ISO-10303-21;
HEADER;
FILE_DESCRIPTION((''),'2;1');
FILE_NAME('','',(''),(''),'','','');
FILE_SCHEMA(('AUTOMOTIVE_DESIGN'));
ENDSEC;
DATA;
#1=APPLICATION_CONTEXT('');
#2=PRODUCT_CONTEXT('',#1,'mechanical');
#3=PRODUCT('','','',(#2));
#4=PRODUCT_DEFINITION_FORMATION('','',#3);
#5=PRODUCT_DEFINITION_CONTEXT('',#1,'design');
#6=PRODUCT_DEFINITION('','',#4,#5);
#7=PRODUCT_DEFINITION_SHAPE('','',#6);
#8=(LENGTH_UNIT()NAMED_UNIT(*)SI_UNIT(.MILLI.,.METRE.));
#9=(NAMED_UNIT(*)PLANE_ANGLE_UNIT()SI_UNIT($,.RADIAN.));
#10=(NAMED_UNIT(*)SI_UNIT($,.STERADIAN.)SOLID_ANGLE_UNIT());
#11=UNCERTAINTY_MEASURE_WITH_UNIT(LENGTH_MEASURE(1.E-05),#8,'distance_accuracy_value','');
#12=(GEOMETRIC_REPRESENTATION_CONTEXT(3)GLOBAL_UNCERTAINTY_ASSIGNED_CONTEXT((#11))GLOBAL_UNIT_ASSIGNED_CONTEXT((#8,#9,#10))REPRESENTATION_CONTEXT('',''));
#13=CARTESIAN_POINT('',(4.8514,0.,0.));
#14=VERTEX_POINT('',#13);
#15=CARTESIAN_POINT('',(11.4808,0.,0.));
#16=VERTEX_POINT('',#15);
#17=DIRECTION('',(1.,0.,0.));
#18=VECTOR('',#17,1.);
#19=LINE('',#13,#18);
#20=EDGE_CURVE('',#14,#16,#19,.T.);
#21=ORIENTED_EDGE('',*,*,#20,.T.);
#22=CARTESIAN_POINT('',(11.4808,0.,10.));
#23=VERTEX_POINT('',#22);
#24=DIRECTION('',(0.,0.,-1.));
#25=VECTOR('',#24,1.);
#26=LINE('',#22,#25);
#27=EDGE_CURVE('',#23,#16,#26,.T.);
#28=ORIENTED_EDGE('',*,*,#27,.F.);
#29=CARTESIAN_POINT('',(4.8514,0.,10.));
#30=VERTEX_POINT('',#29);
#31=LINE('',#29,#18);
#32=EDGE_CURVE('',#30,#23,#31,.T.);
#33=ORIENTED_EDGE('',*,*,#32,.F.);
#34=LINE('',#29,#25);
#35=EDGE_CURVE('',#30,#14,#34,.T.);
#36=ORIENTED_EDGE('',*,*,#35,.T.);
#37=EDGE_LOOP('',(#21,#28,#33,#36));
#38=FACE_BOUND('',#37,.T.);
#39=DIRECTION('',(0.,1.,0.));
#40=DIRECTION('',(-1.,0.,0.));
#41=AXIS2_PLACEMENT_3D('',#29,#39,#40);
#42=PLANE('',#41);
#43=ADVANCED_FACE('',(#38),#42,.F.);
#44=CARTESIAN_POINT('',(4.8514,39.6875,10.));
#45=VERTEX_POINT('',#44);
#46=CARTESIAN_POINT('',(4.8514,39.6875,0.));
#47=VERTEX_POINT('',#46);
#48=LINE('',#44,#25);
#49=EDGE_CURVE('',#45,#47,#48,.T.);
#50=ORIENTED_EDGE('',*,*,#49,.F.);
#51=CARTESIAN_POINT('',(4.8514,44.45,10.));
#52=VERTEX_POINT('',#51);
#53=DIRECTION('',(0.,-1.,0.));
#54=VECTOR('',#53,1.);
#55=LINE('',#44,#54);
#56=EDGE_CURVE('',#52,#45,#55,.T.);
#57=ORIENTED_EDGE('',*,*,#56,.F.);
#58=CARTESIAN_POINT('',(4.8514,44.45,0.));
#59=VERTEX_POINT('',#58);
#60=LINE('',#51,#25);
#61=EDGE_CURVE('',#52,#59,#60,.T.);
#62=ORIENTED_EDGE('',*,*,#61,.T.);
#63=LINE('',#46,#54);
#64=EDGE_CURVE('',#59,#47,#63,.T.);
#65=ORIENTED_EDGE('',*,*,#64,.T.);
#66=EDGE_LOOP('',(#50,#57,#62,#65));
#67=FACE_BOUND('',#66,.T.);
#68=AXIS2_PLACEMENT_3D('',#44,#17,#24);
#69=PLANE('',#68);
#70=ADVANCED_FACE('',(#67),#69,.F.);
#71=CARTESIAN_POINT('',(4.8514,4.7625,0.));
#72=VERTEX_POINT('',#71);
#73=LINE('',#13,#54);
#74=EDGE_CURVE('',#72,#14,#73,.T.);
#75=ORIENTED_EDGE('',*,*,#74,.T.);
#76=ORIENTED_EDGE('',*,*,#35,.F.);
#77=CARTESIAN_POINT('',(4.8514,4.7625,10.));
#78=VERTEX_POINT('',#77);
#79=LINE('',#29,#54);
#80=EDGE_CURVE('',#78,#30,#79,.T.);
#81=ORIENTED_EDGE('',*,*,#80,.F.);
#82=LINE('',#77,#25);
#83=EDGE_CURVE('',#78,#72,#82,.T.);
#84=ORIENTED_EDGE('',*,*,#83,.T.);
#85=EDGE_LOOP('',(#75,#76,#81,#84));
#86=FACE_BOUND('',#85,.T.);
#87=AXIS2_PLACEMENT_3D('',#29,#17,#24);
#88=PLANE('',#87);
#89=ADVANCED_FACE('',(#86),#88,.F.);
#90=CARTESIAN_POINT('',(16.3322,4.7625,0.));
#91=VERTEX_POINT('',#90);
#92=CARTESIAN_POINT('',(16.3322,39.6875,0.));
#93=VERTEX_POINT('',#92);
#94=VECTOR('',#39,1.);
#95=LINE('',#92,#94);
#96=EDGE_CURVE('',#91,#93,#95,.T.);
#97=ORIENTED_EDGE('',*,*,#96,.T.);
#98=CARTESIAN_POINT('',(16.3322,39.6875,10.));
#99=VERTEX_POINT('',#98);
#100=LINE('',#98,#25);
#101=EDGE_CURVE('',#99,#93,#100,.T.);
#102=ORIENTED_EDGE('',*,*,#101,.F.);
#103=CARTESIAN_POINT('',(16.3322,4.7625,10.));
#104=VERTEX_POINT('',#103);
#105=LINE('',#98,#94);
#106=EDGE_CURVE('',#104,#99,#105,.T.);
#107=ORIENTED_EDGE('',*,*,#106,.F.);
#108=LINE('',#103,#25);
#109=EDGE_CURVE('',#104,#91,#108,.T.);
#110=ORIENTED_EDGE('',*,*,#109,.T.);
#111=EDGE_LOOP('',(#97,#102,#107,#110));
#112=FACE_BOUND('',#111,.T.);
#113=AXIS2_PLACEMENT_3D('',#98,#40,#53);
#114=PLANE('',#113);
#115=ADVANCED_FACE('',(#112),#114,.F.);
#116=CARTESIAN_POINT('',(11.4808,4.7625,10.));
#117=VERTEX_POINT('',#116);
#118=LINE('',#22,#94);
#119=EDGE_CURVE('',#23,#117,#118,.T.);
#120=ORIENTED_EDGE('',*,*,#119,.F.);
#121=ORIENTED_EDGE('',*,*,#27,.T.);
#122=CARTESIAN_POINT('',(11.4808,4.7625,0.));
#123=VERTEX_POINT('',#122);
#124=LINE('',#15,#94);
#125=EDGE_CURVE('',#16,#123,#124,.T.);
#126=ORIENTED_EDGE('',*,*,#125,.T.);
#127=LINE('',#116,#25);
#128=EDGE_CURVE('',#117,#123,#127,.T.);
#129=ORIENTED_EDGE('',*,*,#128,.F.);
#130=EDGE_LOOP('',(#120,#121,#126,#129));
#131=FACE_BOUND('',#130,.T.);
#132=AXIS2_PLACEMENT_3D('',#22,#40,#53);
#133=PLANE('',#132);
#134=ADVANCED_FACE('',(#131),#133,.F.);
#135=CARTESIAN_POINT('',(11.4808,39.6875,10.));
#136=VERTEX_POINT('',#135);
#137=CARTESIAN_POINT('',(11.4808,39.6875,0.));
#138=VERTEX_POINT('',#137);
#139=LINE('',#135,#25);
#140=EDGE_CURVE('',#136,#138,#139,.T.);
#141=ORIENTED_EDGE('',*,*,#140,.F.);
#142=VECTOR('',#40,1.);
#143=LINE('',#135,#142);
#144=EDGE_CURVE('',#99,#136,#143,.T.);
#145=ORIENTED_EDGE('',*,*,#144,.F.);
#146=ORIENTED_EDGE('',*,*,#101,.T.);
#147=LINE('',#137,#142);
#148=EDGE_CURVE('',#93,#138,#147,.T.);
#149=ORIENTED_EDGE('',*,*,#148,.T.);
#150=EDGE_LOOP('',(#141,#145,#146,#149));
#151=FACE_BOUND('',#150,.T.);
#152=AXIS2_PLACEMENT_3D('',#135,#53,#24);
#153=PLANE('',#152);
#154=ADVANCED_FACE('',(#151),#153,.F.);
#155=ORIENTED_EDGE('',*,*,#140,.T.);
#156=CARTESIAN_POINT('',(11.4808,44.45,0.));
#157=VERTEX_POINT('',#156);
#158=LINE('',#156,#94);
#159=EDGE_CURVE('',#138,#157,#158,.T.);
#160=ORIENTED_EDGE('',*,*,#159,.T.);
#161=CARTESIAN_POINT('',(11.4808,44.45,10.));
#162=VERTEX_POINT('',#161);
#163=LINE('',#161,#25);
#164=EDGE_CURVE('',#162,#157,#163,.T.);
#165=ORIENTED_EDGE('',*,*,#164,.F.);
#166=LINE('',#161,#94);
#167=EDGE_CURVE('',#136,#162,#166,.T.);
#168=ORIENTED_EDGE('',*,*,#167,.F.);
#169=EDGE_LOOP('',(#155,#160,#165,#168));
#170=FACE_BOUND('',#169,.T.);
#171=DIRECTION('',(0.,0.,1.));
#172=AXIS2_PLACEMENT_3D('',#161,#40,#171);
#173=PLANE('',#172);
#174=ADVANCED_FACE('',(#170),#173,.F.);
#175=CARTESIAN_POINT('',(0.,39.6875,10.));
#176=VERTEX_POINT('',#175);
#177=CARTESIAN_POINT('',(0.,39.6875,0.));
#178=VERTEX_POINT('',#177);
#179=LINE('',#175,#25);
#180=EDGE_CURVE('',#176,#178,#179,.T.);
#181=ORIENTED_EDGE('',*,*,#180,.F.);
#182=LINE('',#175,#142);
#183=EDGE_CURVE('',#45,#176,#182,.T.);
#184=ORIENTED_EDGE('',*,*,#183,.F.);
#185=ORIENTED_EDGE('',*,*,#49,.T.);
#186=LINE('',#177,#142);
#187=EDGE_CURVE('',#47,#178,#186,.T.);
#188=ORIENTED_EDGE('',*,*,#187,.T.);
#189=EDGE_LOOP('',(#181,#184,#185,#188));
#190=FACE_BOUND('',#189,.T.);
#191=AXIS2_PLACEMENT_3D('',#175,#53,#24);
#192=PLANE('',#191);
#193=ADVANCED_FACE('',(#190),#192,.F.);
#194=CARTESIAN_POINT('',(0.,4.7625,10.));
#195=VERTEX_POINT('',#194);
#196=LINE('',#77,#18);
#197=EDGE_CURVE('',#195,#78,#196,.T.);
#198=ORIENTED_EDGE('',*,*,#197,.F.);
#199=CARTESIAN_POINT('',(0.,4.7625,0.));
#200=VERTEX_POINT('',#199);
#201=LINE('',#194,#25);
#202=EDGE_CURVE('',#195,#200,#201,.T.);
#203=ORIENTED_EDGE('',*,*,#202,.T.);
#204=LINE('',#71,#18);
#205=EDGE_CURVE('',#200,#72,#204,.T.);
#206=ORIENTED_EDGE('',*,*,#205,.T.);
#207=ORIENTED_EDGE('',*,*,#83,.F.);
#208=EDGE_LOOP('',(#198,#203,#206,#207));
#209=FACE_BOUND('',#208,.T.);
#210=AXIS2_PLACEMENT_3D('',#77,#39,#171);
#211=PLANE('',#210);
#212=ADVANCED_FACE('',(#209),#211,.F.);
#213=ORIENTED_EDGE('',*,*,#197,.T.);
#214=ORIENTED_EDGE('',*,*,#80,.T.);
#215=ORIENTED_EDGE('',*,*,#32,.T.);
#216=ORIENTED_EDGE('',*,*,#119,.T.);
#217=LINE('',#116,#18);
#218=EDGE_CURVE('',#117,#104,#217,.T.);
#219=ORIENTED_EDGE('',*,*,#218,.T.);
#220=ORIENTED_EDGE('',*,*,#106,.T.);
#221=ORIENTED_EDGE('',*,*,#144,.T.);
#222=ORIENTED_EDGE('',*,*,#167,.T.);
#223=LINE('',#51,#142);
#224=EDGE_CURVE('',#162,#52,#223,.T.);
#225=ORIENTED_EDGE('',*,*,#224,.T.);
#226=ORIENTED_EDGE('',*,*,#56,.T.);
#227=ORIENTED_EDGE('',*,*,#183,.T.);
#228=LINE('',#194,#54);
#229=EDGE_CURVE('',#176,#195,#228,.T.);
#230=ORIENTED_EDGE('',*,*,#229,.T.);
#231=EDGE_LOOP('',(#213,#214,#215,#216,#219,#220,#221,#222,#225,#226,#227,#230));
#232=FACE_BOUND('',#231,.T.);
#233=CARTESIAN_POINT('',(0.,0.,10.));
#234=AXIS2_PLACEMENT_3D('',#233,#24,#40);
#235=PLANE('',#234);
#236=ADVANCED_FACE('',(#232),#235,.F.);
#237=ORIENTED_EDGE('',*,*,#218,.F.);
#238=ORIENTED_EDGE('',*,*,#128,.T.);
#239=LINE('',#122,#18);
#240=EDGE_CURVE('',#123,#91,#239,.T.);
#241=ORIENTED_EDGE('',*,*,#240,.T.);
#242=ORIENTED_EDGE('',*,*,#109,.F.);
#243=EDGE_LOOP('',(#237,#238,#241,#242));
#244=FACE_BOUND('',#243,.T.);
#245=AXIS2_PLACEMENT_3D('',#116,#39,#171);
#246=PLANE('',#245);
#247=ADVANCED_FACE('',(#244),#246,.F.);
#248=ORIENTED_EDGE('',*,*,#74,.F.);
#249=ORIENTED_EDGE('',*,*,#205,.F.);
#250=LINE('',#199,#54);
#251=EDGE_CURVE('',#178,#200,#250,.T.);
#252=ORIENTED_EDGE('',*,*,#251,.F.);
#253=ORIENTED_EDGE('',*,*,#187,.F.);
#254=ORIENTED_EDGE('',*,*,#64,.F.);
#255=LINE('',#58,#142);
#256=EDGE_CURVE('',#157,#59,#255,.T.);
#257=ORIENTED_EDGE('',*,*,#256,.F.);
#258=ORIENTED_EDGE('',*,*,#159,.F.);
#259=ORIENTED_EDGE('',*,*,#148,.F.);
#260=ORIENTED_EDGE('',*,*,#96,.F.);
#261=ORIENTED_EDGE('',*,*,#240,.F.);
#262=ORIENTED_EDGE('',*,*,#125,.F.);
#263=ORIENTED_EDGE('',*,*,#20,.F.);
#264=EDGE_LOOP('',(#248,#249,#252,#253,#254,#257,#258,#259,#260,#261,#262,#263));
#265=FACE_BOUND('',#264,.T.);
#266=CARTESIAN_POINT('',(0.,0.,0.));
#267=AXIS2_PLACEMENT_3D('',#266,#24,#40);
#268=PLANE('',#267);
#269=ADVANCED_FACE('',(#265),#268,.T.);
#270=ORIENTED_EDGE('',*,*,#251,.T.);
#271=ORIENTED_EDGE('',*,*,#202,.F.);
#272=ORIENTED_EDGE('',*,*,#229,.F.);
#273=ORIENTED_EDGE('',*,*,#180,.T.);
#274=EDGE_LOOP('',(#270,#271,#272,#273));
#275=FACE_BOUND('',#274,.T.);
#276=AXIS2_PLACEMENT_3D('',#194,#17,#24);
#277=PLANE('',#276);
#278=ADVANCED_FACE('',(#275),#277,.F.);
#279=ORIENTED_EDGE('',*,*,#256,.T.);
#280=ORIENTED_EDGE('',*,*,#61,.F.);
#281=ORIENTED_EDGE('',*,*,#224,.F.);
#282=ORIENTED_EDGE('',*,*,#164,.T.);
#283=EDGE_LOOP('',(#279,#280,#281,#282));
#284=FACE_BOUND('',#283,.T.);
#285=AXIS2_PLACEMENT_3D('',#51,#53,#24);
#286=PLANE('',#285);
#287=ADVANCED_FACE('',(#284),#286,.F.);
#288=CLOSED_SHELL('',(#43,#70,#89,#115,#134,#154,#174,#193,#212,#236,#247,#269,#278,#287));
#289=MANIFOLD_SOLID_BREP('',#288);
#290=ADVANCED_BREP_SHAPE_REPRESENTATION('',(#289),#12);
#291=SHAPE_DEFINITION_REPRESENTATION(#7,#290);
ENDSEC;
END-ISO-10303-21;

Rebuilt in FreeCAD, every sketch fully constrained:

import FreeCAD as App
import Part
import Sketcher
Q = App.Units.Quantity


def add_polygon(sketch, points):
    """Adds a closed chain of lines whose ends are joined by coincident constraints."""
    first, n = sketch.GeometryCount, len(points)
    for a, b in zip(points, points[1:] + points[:1]):
        sketch.addGeometry(Part.LineSegment(App.Vector(*a, 0), App.Vector(*b, 0)), False)
    for i in range(n):
        sketch.addConstraint(Sketcher.Constraint("Coincident", first + i, 2, first + (i + 1) % n, 1))

doc = App.newDocument("Part")
body = doc.addObject("PartDesign::Body", "Body")

# Sketch on XY plane
sketch1 = doc.addObject("Sketcher::SketchObject", "Sketch")
body.addObject(sketch1)
sketch1.AttachmentSupport = (doc.XY_Plane, [""])
sketch1.MapMode = "FlatFace"
add_polygon(sketch1, [(4.9, 0), (11.5, 0), (11.5, 4.8), (16.3, 4.8), (16.3, 39.7), (11.5, 39.7), (11.5, 44.5), (4.9, 44.5), (4.9, 39.7), (0, 39.7), (0, 4.8), (4.9, 4.8)])  # lines 0-11
sketch1.addConstraint([
    Sketcher.Constraint("Horizontal", 0),
    Sketcher.Constraint("Vertical", 1),
    Sketcher.Constraint("Horizontal", 2),
    Sketcher.Constraint("Vertical", 3),
    Sketcher.Constraint("Horizontal", 4),
    Sketcher.Constraint("Vertical", 5),
    Sketcher.Constraint("Horizontal", 6),
    Sketcher.Constraint("Vertical", 7),
    Sketcher.Constraint("Horizontal", 8),
    Sketcher.Constraint("Vertical", 9),
    Sketcher.Constraint("Horizontal", 10),
    Sketcher.Constraint("Vertical", 11),
    Sketcher.Constraint("PointOnObject", 0, 2, -1),
    Sketcher.Constraint("PointOnObject", 8, 2, -2),
    Sketcher.Constraint("Horizontal", 4, 2, 7, 2),
    Sketcher.Constraint("Horizontal", 2, 2, 9, 2),
    Sketcher.Constraint("Vertical", 1, 2, 4, 2),
    Sketcher.Constraint("Vertical", 7, 2, 10, 2),
    Sketcher.Constraint("Equal", 4, 8),
    Sketcher.Constraint("Equal", 1, 5),
    Sketcher.Constraint("DistanceX", 0, 1, 0, 2, Q("0.261 in")),
    Sketcher.Constraint("DistanceX", 2, 1, 2, 2, Q("0.191 in")),
    Sketcher.Constraint("DistanceY", 1, 1, 1, 2, Q("0.1875 in")),
    Sketcher.Constraint("DistanceY", 3, 1, 3, 2, Q("1.375 in")),
])
pad1 = doc.addObject("PartDesign::Pad", "Pad")
body.addObject(pad1)
pad1.Profile = sketch1
pad1.Length = 10

doc.recompute()
